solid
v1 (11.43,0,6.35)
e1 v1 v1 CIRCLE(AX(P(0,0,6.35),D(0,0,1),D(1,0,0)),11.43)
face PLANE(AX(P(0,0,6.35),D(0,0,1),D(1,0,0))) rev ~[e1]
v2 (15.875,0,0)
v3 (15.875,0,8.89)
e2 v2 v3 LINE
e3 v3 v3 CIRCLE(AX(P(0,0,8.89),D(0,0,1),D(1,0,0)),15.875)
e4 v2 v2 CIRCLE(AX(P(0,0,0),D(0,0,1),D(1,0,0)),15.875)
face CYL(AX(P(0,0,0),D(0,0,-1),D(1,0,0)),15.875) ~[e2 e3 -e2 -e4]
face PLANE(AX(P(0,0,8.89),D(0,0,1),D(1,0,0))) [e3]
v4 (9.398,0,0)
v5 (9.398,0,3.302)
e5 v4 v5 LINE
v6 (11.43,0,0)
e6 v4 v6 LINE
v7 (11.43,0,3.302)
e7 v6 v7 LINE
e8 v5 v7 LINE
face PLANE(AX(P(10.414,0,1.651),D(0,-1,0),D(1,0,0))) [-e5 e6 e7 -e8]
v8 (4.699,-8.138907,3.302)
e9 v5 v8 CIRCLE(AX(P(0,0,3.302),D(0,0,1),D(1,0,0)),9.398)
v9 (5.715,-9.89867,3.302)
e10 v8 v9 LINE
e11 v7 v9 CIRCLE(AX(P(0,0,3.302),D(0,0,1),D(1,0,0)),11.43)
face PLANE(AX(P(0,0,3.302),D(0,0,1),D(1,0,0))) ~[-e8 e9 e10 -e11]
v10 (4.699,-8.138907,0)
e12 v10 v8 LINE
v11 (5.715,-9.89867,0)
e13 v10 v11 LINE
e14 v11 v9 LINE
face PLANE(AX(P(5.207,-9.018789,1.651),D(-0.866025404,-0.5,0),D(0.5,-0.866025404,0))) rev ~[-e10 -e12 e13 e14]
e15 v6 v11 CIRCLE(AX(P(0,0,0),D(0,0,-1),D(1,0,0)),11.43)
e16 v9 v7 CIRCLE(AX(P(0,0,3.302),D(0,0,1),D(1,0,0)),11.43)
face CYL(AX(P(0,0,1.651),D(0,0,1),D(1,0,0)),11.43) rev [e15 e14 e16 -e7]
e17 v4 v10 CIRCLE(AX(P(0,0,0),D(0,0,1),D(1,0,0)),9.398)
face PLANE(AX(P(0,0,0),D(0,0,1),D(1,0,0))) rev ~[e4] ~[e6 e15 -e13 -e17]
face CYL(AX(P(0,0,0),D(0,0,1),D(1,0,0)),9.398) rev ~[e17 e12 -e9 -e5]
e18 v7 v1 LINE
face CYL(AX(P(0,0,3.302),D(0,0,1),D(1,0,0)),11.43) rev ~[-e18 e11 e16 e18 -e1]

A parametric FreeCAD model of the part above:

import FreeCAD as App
import Part
import Sketcher
from FreeCAD import Vector
Q = App.Units.Quantity

doc = App.newDocument("Part")
body = doc.addObject("PartDesign::Body", "Body")

sketch1 = body.newObject("Sketcher::SketchObject", "Sketch")
sketch1.AttachmentSupport = (doc.getObject("XY_Plane"), [""])
sketch1.MapMode = "FlatFace"
sketch1.addGeometry(Part.Circle(Vector(0, 0, 0), Vector(0, 0, 1), 16), False)
sketch1.addConstraint([
    Sketcher.Constraint("Coincident", 0, 3, -1, 1),
    Sketcher.Constraint("Diameter", 0, Q("1.25 in")),
])
pad1 = body.newObject("PartDesign::Pad", "Pad")
pad1.Profile = sketch1
pad1.Length = Q("0.35 in")

sketch2 = body.newObject("Sketcher::SketchObject", "Sketch001")
sketch2.AttachmentSupport = (doc.getObject("XZ_Plane"), [""])
sketch2.MapMode = "FlatFace"
sketch2.addGeometry([
    Part.LineSegment(Vector(11.4, 6.3, 0), Vector(0, 6.3, 0)),
    Part.LineSegment(Vector(0, 6.3, 0), Vector(0, 0, 0)),
    Part.LineSegment(Vector(0, 0, 0), Vector(9.4, 0, 0)),
    Part.LineSegment(Vector(9.4, 0, 0), Vector(9.4, 3.3, 0)),
    Part.LineSegment(Vector(9.4, 3.3, 0), Vector(11.4, 3.3, 0)),
    Part.LineSegment(Vector(11.4, 3.3, 0), Vector(11.4, 6.3, 0)),
], False)
sketch2.addConstraint([
    Sketcher.Constraint("Coincident", 0, 2, 1, 1),
    Sketcher.Constraint("Coincident", 1, 2, 2, 1),
    Sketcher.Constraint("Coincident", 2, 2, 3, 1),
    Sketcher.Constraint("Coincident", 3, 2, 4, 1),
    Sketcher.Constraint("Coincident", 4, 2, 5, 1),
    Sketcher.Constraint("Coincident", 5, 2, 0, 1),
    Sketcher.Constraint("Horizontal", 0),
    Sketcher.Constraint("Vertical", 1),
    Sketcher.Constraint("Horizontal", 2),
    Sketcher.Constraint("Vertical", 3),
    Sketcher.Constraint("Horizontal", 4),
    Sketcher.Constraint("Vertical", 5),
    Sketcher.Constraint("Coincident", 1, 2, -1, 1),
    Sketcher.Constraint("DistanceX", 0, 2, 0, 1, Q("0.45 in")),
    Sketcher.Constraint("DistanceX", 2, 1, 2, 2, Q("0.37 in")),
    Sketcher.Constraint("DistanceY", 1, 2, 1, 1, Q("0.25 in")),
    Sketcher.Constraint("DistanceY", 3, 1, 3, 2, Q("0.13 in")),
])
groove = body.newObject("PartDesign::Groove", "Groove")
groove.Profile = sketch2
groove.ReferenceAxis = (sketch2, ["V_Axis"])
groove.Angle = 360

sketch3 = body.newObject("Sketcher::SketchObject", "Sketch002")
sketch3.AttachmentSupport = (doc.getObject("XZ_Plane"), [""])
sketch3.MapMode = "FlatFace"
sketch3.addGeometry([
    Part.LineSegment(Vector(9.4, 3.3, 0), Vector(9.4, 0, 0)),
    Part.LineSegment(Vector(9.4, 0, 0), Vector(11.4, 0, 0)),
    Part.LineSegment(Vector(11.4, 0, 0), Vector(11.4, 3.3, 0)),
    Part.LineSegment(Vector(11.4, 3.3, 0), Vector(9.4, 3.3, 0)),
], False)
sketch3.addConstraint([
    Sketcher.Constraint("Coincident", 0, 2, 1, 1),
    Sketcher.Constraint("Coincident", 1, 2, 2, 1),
    Sketcher.Constraint("Coincident", 2, 2, 3, 1),
    Sketcher.Constraint("Coincident", 3, 2, 0, 1),
    Sketcher.Constraint("Vertical", 0),
    Sketcher.Constraint("Horizontal", 1),
    Sketcher.Constraint("Vertical", 2),
    Sketcher.Constraint("Horizontal", 3),
    Sketcher.Constraint("PointOnObject", 0, 2, -1),
    Sketcher.Constraint("DistanceX", 1, 1, 1, 2, Q("0.08 in")),
    Sketcher.Constraint("DistanceY", 0, 2, 0, 1, Q("0.13 in")),
    Sketcher.Constraint("DistanceX", -1, 1, 0, 2, Q("0.37 in")),
])
groove2 = body.newObject("PartDesign::Groove", "Groove001")
groove2.Profile = sketch3
groove2.ReferenceAxis = (sketch3, ["V_Axis"])
groove2.Angle = 60
groove2.Reversed = True

doc.recompute()
